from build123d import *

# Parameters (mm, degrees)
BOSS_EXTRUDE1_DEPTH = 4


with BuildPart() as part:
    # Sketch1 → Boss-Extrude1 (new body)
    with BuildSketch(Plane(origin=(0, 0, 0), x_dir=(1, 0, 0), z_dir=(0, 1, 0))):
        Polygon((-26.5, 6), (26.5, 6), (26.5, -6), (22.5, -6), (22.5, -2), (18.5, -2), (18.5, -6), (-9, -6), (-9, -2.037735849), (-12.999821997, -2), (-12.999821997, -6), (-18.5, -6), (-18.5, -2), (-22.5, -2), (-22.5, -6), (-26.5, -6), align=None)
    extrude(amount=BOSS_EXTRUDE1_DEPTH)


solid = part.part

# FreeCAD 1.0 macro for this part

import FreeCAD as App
import Part
import Sketcher

doc = App.newDocument("Part")
params = doc.addObject("Spreadsheet::Sheet", "Params")
for row, (alias, value) in enumerate([
    ("sketch1_width", "53 mm"),
    ("sketch1_width2", "4 mm"),
    ("sketch1_height", "12 mm"),
    ("sketch1_length", "4 mm"),
    ("sketch1_width3", "27.5 mm"),
    ("pad1_length", "4 mm"),
], start=1):
    params.set(f"A{row}", alias)
    params.set(f"B{row}", "=" + value)
    params.setAlias(f"B{row}", alias)

body = doc.addObject("PartDesign::Body", "Body")

# Sketch on XZ plane
sketch1 = body.newObject("Sketcher::SketchObject", "Sketch")
sketch1.AttachmentSupport = (doc.getObject("XZ_Plane"), [""])
sketch1.MapMode = "FlatFace"
sketch1.addGeometry(Part.LineSegment(App.Vector(26.5, -6, 0), App.Vector(-26.5, -6, 0)), False)
sketch1.addGeometry(Part.LineSegment(App.Vector(-26.5, -6, 0), App.Vector(-26.5, 6, 0)), False)
sketch1.addGeometry(Part.LineSegment(App.Vector(-26.5, 6, 0), App.Vector(-22.5, 6, 0)), False)
sketch1.addGeometry(Part.LineSegment(App.Vector(-22.5, 6, 0), App.Vector(-22.5, 2, 0)), False)
sketch1.addGeometry(Part.LineSegment(App.Vector(-22.5, 2, 0), App.Vector(-18.5, 2, 0)), False)
sketch1.addGeometry(Part.LineSegment(App.Vector(-18.5, 2, 0), App.Vector(-18.5, 6, 0)), False)
sketch1.addGeometry(Part.LineSegment(App.Vector(-18.5, 6, 0), App.Vector(-12.999822, 6, 0)), False)
sketch1.addGeometry(Part.LineSegment(App.Vector(-12.999822, 6, 0), App.Vector(-12.999822, 2, 0)), False)
sketch1.addGeometry(Part.LineSegment(App.Vector(-12.999822, 2, 0), App.Vector(-9, 2.037736, 0)), False)
sketch1.addGeometry(Part.LineSegment(App.Vector(-9, 2.037736, 0), App.Vector(-9, 6, 0)), False)
sketch1.addGeometry(Part.LineSegment(App.Vector(-9, 6, 0), App.Vector(18.5, 6, 0)), False)
sketch1.addGeometry(Part.LineSegment(App.Vector(18.5, 6, 0), App.Vector(18.5, 2, 0)), False)
sketch1.addGeometry(Part.LineSegment(App.Vector(18.5, 2, 0), App.Vector(22.5, 2, 0)), False)
sketch1.addGeometry(Part.LineSegment(App.Vector(22.5, 2, 0), App.Vector(22.5, 6, 0)), False)
sketch1.addGeometry(Part.LineSegment(App.Vector(22.5, 6, 0), App.Vector(26.5, 6, 0)), False)
sketch1.addGeometry(Part.LineSegment(App.Vector(26.5, 6, 0), App.Vector(26.5, -6, 0)), False)
sketch1.addConstraint(Sketcher.Constraint("Coincident", 0, 2, 1, 1))
sketch1.addConstraint(Sketcher.Constraint("Coincident", 1, 2, 2, 1))
sketch1.addConstraint(Sketcher.Constraint("Coincident", 2, 2, 3, 1))
sketch1.addConstraint(Sketcher.Constraint("Coincident", 3, 2, 4, 1))
sketch1.addConstraint(Sketcher.Constraint("Coincident", 4, 2, 5, 1))
sketch1.addConstraint(Sketcher.Constraint("Coincident", 5, 2, 6, 1))
sketch1.addConstraint(Sketcher.Constraint("Coincident", 6, 2, 7, 1))
sketch1.addConstraint(Sketcher.Constraint("Coincident", 7, 2, 8, 1))
sketch1.addConstraint(Sketcher.Constraint("Coincident", 8, 2, 9, 1))
sketch1.addConstraint(Sketcher.Constraint("Coincident", 9, 2, 10, 1))
sketch1.addConstraint(Sketcher.Constraint("Coincident", 10, 2, 11, 1))
sketch1.addConstraint(Sketcher.Constraint("Coincident", 11, 2, 12, 1))
sketch1.addConstraint(Sketcher.Constraint("Coincident", 12, 2, 13, 1))
sketch1.addConstraint(Sketcher.Constraint("Coincident", 13, 2, 14, 1))
sketch1.addConstraint(Sketcher.Constraint("Coincident", 14, 2, 15, 1))
sketch1.addConstraint(Sketcher.Constraint("Coincident", 15, 2, 0, 1))
sketch1.addConstraint(Sketcher.Constraint("Horizontal", 0))
sketch1.addConstraint(Sketcher.Constraint("Vertical", 1))
sketch1.addConstraint(Sketcher.Constraint("Horizontal", 2))
sketch1.addConstraint(Sketcher.Constraint("Vertical", 3))
sketch1.addConstraint(Sketcher.Constraint("Horizontal", 4))
sketch1.addConstraint(Sketcher.Constraint("Vertical", 5))
sketch1.addConstraint(Sketcher.Constraint("Horizontal", 6))
sketch1.addConstraint(Sketcher.Constraint("Vertical", 7))
sketch1.addConstraint(Sketcher.Constraint("Vertical", 9))
sketch1.addConstraint(Sketcher.Constraint("Horizontal", 10))
sketch1.addConstraint(Sketcher.Constraint("Vertical", 11))
sketch1.addConstraint(Sketcher.Constraint("Horizontal", 12))
sketch1.addConstraint(Sketcher.Constraint("Vertical", 13))
sketch1.addConstraint(Sketcher.Constraint("Horizontal", 14))
sketch1.addConstraint(Sketcher.Constraint("Vertical", 15))
sketch1.addConstraint(Sketcher.Constraint("Symmetric", 0, 2, 14, 2, -1, 1))
sketch1.addConstraint(Sketcher.Constraint("Symmetric", 5, 2, 10, 2, -2))
sketch1.addConstraint(Sketcher.Constraint("Symmetric", 3, 2, 12, 2, -2))
sketch1.addConstraint(Sketcher.Constraint("Horizontal", 2, 2, 5, 2))
sketch1.addConstraint(Sketcher.Constraint("Horizontal", 4, 2, 7, 2))
sketch1.addConstraint(Sketcher.Constraint("Horizontal", 10, 2, 13, 2))
sketch1.addConstraint(Sketcher.Constraint("Equal", 2, 4))
sketch1.addConstraint(Sketcher.Constraint("Equal", 14, 3))
sketch1.addConstraint(Sketcher.Constraint("DistanceX", 0, 2, 0, 1, 53.0))
sketch1.addConstraint(Sketcher.Constraint("DistanceX", 2, 1, 2, 2, 4.0))
sketch1.addConstraint(Sketcher.Constraint("DistanceY", 1, 1, 1, 2, 12.0))
sketch1.addConstraint(Sketcher.Constraint("Distance", 8, 4.0))
sketch1.addConstraint(Sketcher.Constraint("DistanceX", 10, 1, 10, 2, 27.5))
sketch1.addConstraint(Sketcher.Constraint("DistanceX", 6, 1, 6, 2, 5.500178))
sketch1.setExpression("Constraints[39]", "Params.sketch1_width")
sketch1.setExpression("Constraints[40]", "Params.sketch1_width2")
sketch1.setExpression("Constraints[41]", "Params.sketch1_height")
sketch1.setExpression("Constraints[42]", "Params.sketch1_length")
sketch1.setExpression("Constraints[43]", "Params.sketch1_width3")
pad1 = body.newObject("PartDesign::Pad", "Pad")
pad1.Profile = sketch1
pad1.setExpression("Length", "Params.pad1_length")
pad1.Reversed = True

doc.recompute()
